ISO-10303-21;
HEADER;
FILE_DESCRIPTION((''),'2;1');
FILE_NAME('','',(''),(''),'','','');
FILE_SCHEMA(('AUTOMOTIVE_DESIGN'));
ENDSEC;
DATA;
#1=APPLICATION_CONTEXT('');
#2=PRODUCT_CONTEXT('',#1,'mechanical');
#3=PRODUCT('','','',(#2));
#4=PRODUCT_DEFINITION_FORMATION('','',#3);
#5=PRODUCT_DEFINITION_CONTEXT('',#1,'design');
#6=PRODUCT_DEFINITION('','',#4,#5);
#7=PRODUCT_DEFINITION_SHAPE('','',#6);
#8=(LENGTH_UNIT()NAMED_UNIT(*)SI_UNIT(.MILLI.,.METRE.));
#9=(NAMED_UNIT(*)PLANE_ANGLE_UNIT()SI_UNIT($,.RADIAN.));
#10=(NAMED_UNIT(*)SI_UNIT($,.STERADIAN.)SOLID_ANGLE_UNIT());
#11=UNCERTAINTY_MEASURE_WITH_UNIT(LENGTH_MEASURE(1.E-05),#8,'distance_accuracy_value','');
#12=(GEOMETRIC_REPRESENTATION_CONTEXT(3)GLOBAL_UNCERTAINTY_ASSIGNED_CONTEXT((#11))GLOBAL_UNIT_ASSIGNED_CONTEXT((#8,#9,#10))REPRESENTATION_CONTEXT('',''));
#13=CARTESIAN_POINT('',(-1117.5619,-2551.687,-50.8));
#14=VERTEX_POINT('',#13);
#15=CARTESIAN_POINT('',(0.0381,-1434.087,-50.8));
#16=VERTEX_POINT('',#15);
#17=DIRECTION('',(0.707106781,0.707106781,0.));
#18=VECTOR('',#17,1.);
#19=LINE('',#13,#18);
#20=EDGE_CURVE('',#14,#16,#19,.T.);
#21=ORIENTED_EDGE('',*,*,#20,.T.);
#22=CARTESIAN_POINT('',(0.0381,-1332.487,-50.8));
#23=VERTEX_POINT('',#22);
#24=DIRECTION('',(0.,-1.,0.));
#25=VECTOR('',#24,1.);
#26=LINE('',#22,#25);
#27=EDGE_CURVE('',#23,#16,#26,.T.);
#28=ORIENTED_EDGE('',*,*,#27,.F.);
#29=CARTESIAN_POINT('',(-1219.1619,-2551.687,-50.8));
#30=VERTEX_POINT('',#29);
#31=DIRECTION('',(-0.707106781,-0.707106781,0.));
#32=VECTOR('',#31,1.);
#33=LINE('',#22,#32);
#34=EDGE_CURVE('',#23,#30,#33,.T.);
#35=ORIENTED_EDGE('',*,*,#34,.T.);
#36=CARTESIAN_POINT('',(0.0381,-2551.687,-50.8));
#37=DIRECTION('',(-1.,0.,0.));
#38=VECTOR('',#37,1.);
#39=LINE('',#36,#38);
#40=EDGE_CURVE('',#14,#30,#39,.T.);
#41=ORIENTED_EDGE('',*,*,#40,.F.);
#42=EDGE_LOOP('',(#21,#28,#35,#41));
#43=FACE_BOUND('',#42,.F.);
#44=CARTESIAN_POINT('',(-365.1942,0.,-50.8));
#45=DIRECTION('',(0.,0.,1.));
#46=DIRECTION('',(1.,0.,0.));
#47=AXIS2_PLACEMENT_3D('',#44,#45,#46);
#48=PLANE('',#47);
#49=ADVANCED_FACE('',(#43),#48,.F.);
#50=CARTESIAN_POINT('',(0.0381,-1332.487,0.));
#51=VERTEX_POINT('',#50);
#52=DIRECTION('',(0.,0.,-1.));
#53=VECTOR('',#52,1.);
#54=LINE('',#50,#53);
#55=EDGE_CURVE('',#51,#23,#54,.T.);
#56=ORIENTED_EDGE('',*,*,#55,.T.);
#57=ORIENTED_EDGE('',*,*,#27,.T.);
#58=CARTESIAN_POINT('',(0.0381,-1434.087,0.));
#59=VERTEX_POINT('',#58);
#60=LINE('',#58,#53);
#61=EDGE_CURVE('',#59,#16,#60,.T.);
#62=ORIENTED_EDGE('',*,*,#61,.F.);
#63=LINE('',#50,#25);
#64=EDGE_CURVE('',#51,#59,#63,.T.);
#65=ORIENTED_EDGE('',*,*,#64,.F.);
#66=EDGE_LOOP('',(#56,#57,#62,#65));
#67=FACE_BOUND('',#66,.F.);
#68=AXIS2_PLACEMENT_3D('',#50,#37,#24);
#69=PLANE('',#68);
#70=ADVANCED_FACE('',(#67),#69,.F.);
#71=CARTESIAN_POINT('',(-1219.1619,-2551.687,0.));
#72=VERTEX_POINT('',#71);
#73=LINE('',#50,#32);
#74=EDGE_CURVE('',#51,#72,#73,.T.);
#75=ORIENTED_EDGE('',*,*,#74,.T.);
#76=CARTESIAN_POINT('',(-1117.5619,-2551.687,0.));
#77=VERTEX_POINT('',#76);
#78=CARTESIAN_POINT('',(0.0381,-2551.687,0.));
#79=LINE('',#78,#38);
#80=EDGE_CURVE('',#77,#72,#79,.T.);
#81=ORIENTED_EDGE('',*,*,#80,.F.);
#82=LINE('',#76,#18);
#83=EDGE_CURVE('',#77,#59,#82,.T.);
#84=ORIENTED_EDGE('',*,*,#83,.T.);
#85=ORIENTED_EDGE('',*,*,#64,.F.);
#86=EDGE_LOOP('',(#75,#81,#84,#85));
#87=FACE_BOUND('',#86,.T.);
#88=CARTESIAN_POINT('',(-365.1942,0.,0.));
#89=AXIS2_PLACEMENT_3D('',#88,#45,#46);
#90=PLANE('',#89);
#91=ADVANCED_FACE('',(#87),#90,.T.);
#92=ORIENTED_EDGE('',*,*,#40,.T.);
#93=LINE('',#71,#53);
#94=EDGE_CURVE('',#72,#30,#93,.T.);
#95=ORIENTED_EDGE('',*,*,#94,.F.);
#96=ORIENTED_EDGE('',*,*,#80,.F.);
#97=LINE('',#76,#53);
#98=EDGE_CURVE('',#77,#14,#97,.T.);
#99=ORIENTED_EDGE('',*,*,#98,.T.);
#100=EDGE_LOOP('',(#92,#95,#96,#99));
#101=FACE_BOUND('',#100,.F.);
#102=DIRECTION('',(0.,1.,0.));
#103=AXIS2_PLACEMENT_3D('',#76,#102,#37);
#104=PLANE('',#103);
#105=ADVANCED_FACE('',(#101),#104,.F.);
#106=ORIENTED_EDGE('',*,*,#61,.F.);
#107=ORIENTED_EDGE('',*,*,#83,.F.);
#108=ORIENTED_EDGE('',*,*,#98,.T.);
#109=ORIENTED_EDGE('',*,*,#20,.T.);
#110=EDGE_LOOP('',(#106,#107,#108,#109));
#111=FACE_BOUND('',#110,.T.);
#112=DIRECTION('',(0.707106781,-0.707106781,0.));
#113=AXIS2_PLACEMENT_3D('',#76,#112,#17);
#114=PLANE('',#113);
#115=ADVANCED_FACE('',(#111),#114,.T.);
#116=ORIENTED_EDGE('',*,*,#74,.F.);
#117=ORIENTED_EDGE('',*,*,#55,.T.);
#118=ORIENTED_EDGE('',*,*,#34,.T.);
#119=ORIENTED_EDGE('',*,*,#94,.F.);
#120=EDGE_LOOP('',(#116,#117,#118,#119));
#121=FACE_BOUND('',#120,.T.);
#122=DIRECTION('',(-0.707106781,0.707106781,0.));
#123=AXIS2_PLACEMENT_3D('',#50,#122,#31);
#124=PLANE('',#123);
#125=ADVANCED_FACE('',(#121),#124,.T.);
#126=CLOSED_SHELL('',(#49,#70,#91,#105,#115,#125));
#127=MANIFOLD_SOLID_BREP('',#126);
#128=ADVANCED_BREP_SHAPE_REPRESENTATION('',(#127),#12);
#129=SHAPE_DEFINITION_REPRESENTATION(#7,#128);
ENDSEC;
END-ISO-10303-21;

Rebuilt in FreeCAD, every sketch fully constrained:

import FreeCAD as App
import Part
import Sketcher

V = App.Vector
Q = App.Units.Quantity


def add_polygon(sketch, points):
    """Adds a closed chain of lines whose ends are joined by coincident constraints."""
    first, n = sketch.GeometryCount, len(points)
    for a, b in zip(points, points[1:] + points[:1]):
        sketch.addGeometry(Part.LineSegment(App.Vector(*a, 0), App.Vector(*b, 0)), False)
    for i in range(n):
        sketch.addConstraint(Sketcher.Constraint("Coincident", first + i, 2, first + (i + 1) % n, 1))

doc = App.newDocument("Part")
body = doc.addObject("PartDesign::Body", "Body")

# Sketch on XY plane
sketch1 = body.newObject("Sketcher::SketchObject", "Sketch")
sketch1.AttachmentSupport = (doc.getObject("XY_Plane"), [""])
sketch1.MapMode = "FlatFace"
add_polygon(sketch1, [(-1219.1619, -2551.687), (-1117.5619, -2551.687), (0.0381, -1434.087), (0.0381, -1332.487)])  # lines 0-3
sketch1.addConstraint([
    Sketcher.Constraint("Horizontal", 0),
    Sketcher.Constraint("Vertical", 2),
    Sketcher.Constraint("Parallel", 1, 3),
    Sketcher.Constraint("Equal", 0, 2),
    Sketcher.Constraint("DistanceX", 0, 1, 0, 2, Q("4 in")),
    Sketcher.Constraint("DistanceX", 0, 2, 1, 2, Q("44 in")),
    Sketcher.Constraint("DistanceX", 0, 2, -1, 1, Q("43.9985 in")),
    Sketcher.Constraint("DistanceY", 0, 2, -1, 1, 2551.687),
])
pad1 = body.newObject("PartDesign::Pad", "Pad")
pad1.Profile = sketch1
pad1.Length = Q("2 in")
pad1.Reversed = True

doc.recompute()
